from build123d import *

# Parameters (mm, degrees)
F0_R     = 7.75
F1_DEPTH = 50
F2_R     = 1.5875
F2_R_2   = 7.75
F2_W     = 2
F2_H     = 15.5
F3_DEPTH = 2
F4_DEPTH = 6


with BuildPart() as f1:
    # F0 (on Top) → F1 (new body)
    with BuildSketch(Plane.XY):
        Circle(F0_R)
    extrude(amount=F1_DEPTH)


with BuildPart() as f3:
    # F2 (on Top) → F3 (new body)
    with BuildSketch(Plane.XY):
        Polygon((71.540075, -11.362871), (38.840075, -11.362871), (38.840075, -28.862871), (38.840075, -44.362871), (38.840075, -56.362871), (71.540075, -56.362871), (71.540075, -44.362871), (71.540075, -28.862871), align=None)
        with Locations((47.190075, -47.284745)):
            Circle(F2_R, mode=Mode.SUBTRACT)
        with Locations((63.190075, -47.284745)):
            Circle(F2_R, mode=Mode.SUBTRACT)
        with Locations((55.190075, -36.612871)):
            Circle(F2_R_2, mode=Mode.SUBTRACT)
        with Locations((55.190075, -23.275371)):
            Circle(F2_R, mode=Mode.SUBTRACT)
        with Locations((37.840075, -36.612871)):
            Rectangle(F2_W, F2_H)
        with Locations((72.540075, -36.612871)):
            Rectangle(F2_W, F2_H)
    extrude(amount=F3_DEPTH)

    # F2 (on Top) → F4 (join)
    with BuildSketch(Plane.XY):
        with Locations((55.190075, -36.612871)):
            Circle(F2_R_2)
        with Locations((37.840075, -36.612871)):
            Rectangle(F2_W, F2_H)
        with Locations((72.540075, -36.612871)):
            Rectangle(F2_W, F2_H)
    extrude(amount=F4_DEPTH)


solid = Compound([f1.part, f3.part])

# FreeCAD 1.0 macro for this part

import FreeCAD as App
import Part
import Sketcher

V = App.Vector
Q = App.Units.Quantity


def add_polygon(sketch, points):
    """Adds a closed chain of lines whose ends are joined by coincident constraints."""
    first, n = sketch.GeometryCount, len(points)
    for a, b in zip(points, points[1:] + points[:1]):
        sketch.addGeometry(Part.LineSegment(App.Vector(*a, 0), App.Vector(*b, 0)), False)
    for i in range(n):
        sketch.addConstraint(Sketcher.Constraint("Coincident", first + i, 2, first + (i + 1) % n, 1))

doc = App.newDocument("Part")
body = doc.addObject("PartDesign::Body", "Body")

# Sketch on XY plane
sketch1 = body.newObject("Sketcher::SketchObject", "Sketch")
sketch1.AttachmentSupport = (doc.getObject("XY_Plane"), [""])
sketch1.MapMode = "FlatFace"
sketch1.addGeometry(Part.Circle(V(0, 0, 0), V(0, 0, 1), 8), False)
sketch1.addConstraint([
    Sketcher.Constraint("Coincident", 0, 3, -1, 1),
    Sketcher.Constraint("Diameter", 0, Q("15.5 mm")),
])
pad1 = body.newObject("PartDesign::Pad", "Pad")
pad1.Profile = sketch1
pad1.Length = 50
body2 = doc.addObject("PartDesign::Body", "Body001")

# Sketch on XY plane
sketch2 = body2.newObject("Sketcher::SketchObject", "Sketch001")
sketch2.AttachmentSupport = (doc.getObject("XY_Plane001"), [""])
sketch2.MapMode = "FlatFace"
add_polygon(sketch2, [(71.5, -11.4), (38.8, -11.4), (38.8, -28.9), (36.8, -28.9), (36.8, -44.4), (38.8, -44.4), (38.8, -56.4), (71.5, -56.4), (71.5, -44.4), (73.5, -44.4), (73.5, -28.9), (71.5, -28.9)])  # lines 0-11
sketch2.addGeometry(Part.Circle(V(47.2, -47.3, 0), V(0, 0, 1), 1.6), False)  # 12
sketch2.addGeometry(Part.Circle(V(63.2, -47.3, 0), V(0, 0, 1), 1.6), False)  # 13
sketch2.addGeometry(Part.Circle(V(55.2, -36.6, 0), V(0, 0, 1), 7.8), False)  # 14
sketch2.addGeometry(Part.Circle(V(55.2, -23.3, 0), V(0, 0, 1), 1.6), False)  # 15
sketch2.addConstraint([
    Sketcher.Constraint("Horizontal", 0),
    Sketcher.Constraint("Vertical", 1),
    Sketcher.Constraint("Horizontal", 2),
    Sketcher.Constraint("Vertical", 3),
    Sketcher.Constraint("Horizontal", 4),
    Sketcher.Constraint("Vertical", 5),
    Sketcher.Constraint("Horizontal", 6),
    Sketcher.Constraint("Vertical", 7),
    Sketcher.Constraint("Horizontal", 8),
    Sketcher.Constraint("Vertical", 9),
    Sketcher.Constraint("Horizontal", 10),
    Sketcher.Constraint("Vertical", 11),
    Sketcher.Constraint("Equal", 12, 13),
    Sketcher.Constraint("Equal", 13, 15),
    Sketcher.Constraint("Horizontal", 12, 3, 13, 3),
    Sketcher.Constraint("Horizontal", 4, 2, 7, 2),
    Sketcher.Constraint("Horizontal", 2, 2, 9, 2),
    Sketcher.Constraint("Vertical", 14, 3, 15, 3),
    Sketcher.Constraint("Vertical", 1, 2, 4, 2),
    Sketcher.Constraint("Vertical", 7, 2, 10, 2),
    Sketcher.Constraint("Equal", 4, 8),
    Sketcher.Constraint("Diameter", 14, Q("15.5 mm")),
    Sketcher.Constraint("DistanceX", 2, 2, 2, 1, Q("2 mm")),
    Sketcher.Constraint("DistanceY", 5, 2, 5, 1, Q("12 mm")),
    Sketcher.Constraint("Diameter", 12, Q("3.175 mm")),
    Sketcher.Constraint("DistanceX", 0, 2, 0, 1, Q("32.7 mm")),
    Sketcher.Constraint("DistanceY", 1, 2, 1, 1, Q("17.5 mm")),
    Sketcher.Constraint("DistanceY", 3, 2, 3, 1, Q("15.5 mm")),
    Sketcher.Constraint("DistanceX", 12, 3, 13, 3, Q("16 mm")),
    Sketcher.Constraint("DistanceX", 12, 3, 14, 3, Q("8 mm")),
    Sketcher.Constraint("DistanceX", 0, 2, 15, 3, Q("16.35 mm")),
    Sketcher.Constraint("DistanceY", 14, 3, 0, 2, Q("25.25 mm")),
    Sketcher.Constraint("DistanceY", 14, 3, 15, 3, Q("13.3375 mm")),
    Sketcher.Constraint("DistanceY", 14, 3, -1, 1, Q("36.612871 mm")),
    Sketcher.Constraint("DistanceX", -1, 1, 12, 3, Q("47.190075 mm")),
    Sketcher.Constraint("DistanceY", 12, 3, -1, 1, Q("47.284745 mm")),
])
pad2 = body2.newObject("PartDesign::Pad", "Pad001")
pad2.Profile = sketch2
pad2.Length = 2

# Sketch on XY plane
sketch3 = body2.newObject("Sketcher::SketchObject", "Sketch002")
sketch3.AttachmentSupport = (doc.getObject("XY_Plane001"), [""])
sketch3.MapMode = "FlatFace"
sketch3.addGeometry(Part.Circle(V(55.2, -36.6, 0), V(0, 0, 1), 7.8), False)  # 0
add_polygon(sketch3, [(36.8, -28.9), (36.8, -44.4), (38.8, -44.4), (38.8, -28.9)])  # lines 1-4
add_polygon(sketch3, [(71.5, -28.9), (71.5, -44.4), (73.5, -44.4), (73.5, -28.9)])  # lines 5-8
sketch3.addConstraint([
    Sketcher.Constraint("Vertical", 1),
    Sketcher.Constraint("Horizontal", 2),
    Sketcher.Constraint("Vertical", 3),
    Sketcher.Constraint("Horizontal", 4),
    Sketcher.Constraint("Vertical", 5),
    Sketcher.Constraint("Horizontal", 6),
    Sketcher.Constraint("Vertical", 7),
    Sketcher.Constraint("Horizontal", 8),
    Sketcher.Constraint("Horizontal", 2, 2, 5, 2),
    Sketcher.Constraint("Horizontal", 4, 2, 7, 2),
    Sketcher.Constraint("Equal", 4, 6),
    Sketcher.Constraint("Diameter", 0, Q("15.5 mm")),
    Sketcher.Constraint("DistanceX", 2, 1, 2, 2, Q("2 mm")),
    Sketcher.Constraint("DistanceY", 1, 2, 1, 1, Q("15.5 mm")),
    Sketcher.Constraint("DistanceX", 2, 2, 5, 2, Q("32.7 mm")),
    Sketcher.Constraint("DistanceX", 1, 2, 0, 3, Q("18.35 mm")),
    Sketcher.Constraint("DistanceY", 1, 2, 0, 3, Q("7.75 mm")),
    Sketcher.Constraint("DistanceY", 0, 3, -1, 1, Q("36.612871 mm")),
    Sketcher.Constraint("DistanceX", -1, 1, 0, 3, Q("55.190075 mm")),
])
pad3 = body2.newObject("PartDesign::Pad", "Pad002")
pad3.Profile = sketch3
pad3.Length = 6

doc.recompute()
